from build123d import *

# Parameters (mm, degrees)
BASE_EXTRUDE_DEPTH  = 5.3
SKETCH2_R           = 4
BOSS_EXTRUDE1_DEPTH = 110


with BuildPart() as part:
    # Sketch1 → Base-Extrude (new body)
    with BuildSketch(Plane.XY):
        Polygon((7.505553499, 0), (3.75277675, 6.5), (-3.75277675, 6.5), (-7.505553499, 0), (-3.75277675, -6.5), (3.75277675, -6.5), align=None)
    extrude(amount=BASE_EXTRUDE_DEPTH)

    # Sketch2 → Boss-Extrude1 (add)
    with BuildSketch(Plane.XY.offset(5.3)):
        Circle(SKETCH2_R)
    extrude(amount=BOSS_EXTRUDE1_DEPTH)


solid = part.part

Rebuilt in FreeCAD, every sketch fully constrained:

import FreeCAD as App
import Part
import Sketcher

V = App.Vector
Q = App.Units.Quantity

doc = App.newDocument("Part")
body = doc.addObject("PartDesign::Body", "Body")

# Sketch on XY plane
sketch1 = body.newObject("Sketcher::SketchObject", "Sketch")
sketch1.AttachmentSupport = (doc.getObject("XY_Plane"), [""])
sketch1.MapMode = "FlatFace"
sketch1.addGeometry([
    Part.LineSegment(V(8, 0, 0), V(4, 6, 0)),  # 0
    Part.LineSegment(V(4, 6, 0), V(-4, 6, 0)),  # 1
    Part.LineSegment(V(-4, 6, 0), V(-8, 0, 0)),  # 2
    Part.LineSegment(V(-8, 0, 0), V(-4, -6, 0)),  # 3
    Part.LineSegment(V(-4, -6, 0), V(4, -6, 0)),  # 4
    Part.LineSegment(V(4, -6, 0), V(8, 0, 0)),  # 5
], False)
sketch1.addConstraint([
    Sketcher.Constraint("Coincident", 0, 2, 1, 1),
    Sketcher.Constraint("Coincident", 1, 2, 2, 1),
    Sketcher.Constraint("Coincident", 2, 2, 3, 1),
    Sketcher.Constraint("Coincident", 3, 2, 4, 1),
    Sketcher.Constraint("Coincident", 4, 2, 5, 1),
    Sketcher.Constraint("Coincident", 5, 2, 0, 1),
    Sketcher.Constraint("Horizontal", 1),
    Sketcher.Constraint("Horizontal", 4),
    Sketcher.Constraint("Symmetric", 0, 2, 3, 2, -1, 1),
    Sketcher.Constraint("Symmetric", 2, 2, 5, 2, -1, 1),
    Sketcher.Constraint("PointOnObject", 2, 2, -1),
    Sketcher.Constraint("Parallel", 2, 5),
    Sketcher.Constraint("Vertical", 1, 2, 3, 2),
    Sketcher.Constraint("Angle", 0, Q("120 deg")),
    Sketcher.Constraint("DistanceY", 3, 2, 1, 2, 13.0),
    Sketcher.Constraint("DistanceX", 1, 2, 1, 1, 7.505554),
])
pad1 = body.newObject("PartDesign::Pad", "Pad")
pad1.Profile = sketch1
pad1.Length = 5.3

# Sketch on XY plane
sketch2 = body.newObject("Sketcher::SketchObject", "Sketch001")
sketch2.AttachmentSupport = (doc.getObject("XY_Plane"), [""])
sketch2.MapMode = "FlatFace"
sketch2.AttachmentOffset = App.Placement(V(0, 0, 5.3), App.Rotation())
sketch2.addGeometry(Part.Circle(V(0, 0, 0), V(0, 0, 1), 4), False)
sketch2.addConstraint([
    Sketcher.Constraint("Coincident", 0, 3, -1, 1),
    Sketcher.Constraint("Diameter", 0, 8.0),
])
pad2 = body.newObject("PartDesign::Pad", "Pad001")
pad2.Profile = sketch2
pad2.Length = 110

doc.recompute()
